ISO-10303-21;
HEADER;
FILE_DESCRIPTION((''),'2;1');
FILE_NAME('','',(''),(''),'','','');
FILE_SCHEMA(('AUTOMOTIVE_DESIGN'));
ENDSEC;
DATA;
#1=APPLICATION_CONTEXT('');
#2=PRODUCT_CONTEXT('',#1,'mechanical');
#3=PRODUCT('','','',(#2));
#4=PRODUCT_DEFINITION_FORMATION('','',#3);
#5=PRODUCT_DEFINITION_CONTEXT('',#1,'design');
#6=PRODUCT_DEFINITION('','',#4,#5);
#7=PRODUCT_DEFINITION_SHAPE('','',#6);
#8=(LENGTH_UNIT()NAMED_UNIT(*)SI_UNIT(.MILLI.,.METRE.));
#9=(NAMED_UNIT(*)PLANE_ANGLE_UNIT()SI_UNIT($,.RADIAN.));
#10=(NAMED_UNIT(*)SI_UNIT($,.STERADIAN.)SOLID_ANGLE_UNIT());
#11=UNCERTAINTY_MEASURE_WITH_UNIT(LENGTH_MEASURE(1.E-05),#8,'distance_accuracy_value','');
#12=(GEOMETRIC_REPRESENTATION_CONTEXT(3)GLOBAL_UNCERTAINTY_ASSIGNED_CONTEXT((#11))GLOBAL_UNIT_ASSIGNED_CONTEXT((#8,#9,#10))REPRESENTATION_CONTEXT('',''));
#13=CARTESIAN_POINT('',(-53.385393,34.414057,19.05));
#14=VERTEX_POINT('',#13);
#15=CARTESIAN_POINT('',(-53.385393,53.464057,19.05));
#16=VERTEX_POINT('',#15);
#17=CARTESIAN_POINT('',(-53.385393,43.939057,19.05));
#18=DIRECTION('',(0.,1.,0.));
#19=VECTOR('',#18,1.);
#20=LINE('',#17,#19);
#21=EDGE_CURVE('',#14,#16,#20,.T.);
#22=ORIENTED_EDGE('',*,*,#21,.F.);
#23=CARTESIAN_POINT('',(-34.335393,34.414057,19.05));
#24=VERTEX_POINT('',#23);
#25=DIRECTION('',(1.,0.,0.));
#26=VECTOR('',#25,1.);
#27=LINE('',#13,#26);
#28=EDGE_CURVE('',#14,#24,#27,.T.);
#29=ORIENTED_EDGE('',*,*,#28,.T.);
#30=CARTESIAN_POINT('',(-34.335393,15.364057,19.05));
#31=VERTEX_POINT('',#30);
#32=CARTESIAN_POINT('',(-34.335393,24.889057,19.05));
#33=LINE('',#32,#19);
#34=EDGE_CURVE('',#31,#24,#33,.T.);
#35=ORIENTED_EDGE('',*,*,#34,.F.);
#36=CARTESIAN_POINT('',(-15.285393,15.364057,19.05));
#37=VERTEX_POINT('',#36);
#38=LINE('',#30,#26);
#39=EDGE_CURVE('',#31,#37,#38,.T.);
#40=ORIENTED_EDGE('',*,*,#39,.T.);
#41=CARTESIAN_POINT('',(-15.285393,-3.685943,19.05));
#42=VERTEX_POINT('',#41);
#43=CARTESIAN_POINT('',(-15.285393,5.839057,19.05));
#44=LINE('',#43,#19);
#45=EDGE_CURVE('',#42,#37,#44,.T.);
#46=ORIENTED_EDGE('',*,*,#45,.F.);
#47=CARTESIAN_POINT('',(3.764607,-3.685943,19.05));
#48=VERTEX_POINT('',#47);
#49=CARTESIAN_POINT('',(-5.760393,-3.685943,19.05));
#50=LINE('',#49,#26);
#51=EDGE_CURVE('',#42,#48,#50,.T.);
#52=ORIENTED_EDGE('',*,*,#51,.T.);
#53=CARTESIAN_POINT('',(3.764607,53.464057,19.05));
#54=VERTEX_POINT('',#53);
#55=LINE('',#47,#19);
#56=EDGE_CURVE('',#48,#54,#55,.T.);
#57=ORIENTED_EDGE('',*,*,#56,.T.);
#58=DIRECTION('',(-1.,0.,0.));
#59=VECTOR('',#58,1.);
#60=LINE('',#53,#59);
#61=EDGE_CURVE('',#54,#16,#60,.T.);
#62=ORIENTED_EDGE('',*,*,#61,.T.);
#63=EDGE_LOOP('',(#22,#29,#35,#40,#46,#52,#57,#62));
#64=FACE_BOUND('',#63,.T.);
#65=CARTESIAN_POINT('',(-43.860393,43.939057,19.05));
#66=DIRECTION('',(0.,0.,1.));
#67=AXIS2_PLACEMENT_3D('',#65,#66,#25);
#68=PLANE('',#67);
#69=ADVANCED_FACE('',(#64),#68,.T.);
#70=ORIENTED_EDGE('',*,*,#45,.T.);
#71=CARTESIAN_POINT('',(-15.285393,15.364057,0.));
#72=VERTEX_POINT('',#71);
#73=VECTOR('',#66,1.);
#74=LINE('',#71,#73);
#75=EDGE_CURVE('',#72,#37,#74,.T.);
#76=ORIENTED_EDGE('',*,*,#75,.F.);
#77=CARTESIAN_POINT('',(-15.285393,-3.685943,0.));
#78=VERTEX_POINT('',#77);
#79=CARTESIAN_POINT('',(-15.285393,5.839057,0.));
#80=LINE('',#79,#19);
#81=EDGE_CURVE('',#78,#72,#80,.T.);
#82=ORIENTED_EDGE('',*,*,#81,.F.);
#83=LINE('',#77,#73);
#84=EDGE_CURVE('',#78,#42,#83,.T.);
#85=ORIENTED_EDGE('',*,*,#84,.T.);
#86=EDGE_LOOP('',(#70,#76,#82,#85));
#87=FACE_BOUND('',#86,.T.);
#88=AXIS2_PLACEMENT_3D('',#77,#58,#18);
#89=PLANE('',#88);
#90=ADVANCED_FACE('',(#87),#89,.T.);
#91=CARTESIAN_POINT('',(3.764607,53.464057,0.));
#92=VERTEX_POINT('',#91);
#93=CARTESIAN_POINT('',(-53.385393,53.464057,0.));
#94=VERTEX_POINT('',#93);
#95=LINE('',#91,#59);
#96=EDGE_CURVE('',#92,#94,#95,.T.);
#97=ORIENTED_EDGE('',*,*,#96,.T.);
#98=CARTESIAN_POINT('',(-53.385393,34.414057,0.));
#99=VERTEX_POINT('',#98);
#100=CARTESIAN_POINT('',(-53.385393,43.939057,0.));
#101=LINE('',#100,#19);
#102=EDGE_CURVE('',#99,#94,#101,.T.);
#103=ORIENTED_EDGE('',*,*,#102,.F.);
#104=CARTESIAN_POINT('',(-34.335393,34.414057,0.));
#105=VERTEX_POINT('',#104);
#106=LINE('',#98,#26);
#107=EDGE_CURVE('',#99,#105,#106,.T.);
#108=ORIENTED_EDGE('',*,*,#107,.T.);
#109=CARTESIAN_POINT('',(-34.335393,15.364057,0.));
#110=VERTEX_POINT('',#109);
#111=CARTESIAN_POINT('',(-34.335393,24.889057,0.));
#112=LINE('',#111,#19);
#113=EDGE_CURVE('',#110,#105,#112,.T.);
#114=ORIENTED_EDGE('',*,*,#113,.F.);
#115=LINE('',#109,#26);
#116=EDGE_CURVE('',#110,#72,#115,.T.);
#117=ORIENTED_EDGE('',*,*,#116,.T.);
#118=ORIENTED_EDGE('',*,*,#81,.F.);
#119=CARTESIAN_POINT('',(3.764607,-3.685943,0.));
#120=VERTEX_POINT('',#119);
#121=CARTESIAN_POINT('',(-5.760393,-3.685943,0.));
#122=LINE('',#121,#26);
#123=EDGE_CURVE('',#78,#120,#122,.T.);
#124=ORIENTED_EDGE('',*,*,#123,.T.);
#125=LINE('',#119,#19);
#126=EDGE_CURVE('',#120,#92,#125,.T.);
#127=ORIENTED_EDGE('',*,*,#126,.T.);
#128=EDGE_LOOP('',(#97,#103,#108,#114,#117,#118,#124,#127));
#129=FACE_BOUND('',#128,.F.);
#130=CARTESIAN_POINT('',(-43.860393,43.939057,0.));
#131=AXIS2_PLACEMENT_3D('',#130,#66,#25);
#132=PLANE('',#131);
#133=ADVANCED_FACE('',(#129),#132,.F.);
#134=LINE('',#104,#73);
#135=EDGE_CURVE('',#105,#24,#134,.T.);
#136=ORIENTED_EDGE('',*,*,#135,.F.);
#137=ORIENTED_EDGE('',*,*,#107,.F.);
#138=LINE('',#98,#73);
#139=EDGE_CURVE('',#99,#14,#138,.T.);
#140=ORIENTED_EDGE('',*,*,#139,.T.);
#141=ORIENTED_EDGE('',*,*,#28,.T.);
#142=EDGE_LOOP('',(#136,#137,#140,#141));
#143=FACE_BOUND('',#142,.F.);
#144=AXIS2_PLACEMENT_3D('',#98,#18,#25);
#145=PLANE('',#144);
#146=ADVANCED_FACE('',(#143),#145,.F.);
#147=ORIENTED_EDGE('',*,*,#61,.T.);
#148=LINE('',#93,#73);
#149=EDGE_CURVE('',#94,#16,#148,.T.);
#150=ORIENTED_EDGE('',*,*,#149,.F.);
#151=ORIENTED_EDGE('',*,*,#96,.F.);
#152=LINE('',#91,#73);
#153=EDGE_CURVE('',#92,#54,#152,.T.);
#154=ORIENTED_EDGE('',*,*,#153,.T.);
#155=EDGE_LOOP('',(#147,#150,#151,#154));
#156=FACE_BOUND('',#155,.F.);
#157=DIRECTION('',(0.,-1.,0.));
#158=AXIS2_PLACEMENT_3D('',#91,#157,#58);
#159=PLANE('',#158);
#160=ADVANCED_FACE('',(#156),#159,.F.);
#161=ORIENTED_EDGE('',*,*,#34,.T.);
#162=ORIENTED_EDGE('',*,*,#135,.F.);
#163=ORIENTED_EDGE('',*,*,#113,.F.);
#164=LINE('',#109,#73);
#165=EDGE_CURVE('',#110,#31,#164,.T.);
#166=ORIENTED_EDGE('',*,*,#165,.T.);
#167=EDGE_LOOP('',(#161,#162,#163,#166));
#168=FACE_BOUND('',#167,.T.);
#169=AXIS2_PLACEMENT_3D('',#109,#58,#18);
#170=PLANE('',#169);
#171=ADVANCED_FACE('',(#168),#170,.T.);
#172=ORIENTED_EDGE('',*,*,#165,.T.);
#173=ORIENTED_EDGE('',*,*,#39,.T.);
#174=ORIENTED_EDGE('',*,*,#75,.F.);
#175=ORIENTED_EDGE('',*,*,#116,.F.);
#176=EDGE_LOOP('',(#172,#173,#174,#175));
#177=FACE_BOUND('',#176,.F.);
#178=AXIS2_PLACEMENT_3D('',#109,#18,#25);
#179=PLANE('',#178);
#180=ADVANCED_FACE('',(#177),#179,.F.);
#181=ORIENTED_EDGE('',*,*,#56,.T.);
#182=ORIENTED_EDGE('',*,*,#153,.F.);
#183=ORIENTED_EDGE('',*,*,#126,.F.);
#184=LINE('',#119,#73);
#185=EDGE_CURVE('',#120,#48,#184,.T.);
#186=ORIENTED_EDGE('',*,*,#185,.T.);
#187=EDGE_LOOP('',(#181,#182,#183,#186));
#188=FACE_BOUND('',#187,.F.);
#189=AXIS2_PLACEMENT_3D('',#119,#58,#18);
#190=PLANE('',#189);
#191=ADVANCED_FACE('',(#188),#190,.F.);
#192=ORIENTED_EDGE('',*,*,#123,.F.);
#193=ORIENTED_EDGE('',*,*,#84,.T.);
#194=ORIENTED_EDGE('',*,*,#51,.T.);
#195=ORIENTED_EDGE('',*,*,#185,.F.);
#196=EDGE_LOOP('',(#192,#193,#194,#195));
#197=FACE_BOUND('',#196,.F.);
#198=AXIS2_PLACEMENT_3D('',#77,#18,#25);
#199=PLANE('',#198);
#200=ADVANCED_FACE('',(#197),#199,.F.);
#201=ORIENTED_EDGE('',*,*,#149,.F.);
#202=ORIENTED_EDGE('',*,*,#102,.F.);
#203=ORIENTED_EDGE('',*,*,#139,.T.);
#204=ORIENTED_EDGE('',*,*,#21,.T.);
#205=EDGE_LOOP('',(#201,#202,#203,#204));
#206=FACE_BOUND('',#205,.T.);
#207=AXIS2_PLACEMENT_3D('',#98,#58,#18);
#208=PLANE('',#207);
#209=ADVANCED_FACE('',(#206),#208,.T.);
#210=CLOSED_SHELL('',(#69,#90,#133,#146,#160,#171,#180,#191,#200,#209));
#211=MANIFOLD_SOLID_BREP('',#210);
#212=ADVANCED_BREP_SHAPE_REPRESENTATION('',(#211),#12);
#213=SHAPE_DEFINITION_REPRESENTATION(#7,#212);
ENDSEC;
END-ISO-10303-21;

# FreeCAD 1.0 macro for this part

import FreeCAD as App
import Part
import Sketcher
Q = App.Units.Quantity


def add_polygon(sketch, points):
    """Adds a closed chain of lines whose ends are joined by coincident constraints."""
    first, n = sketch.GeometryCount, len(points)
    for a, b in zip(points, points[1:] + points[:1]):
        sketch.addGeometry(Part.LineSegment(App.Vector(*a, 0), App.Vector(*b, 0)), False)
    for i in range(n):
        sketch.addConstraint(Sketcher.Constraint("Coincident", first + i, 2, first + (i + 1) % n, 1))

doc = App.newDocument("Part")
params = doc.addObject("Spreadsheet::Sheet", "Params")
for row, (alias, value) in enumerate([
    ("sketch1_width", "0.75 in"),
    ("pad1_length", "0.75 in"),
], start=1):
    params.set(f"A{row}", alias)
    params.set(f"B{row}", "=" + value)
    params.setAlias(f"B{row}", alias)

body = doc.addObject("PartDesign::Body", "Body")

sketch1 = body.newObject("Sketcher::SketchObject", "Sketch")
sketch1.AttachmentSupport = (doc.getObject("XY_Plane"), [""])
sketch1.MapMode = "FlatFace"
add_polygon(sketch1, [(-53, 53), (-53, 34), (-34, 34), (-34, 15), (-15, 15), (-15, -4), (4, -4), (4, 53)])
sketch1.addConstraint(Sketcher.Constraint("Vertical", 0))
sketch1.addConstraint(Sketcher.Constraint("Horizontal", 1))
sketch1.addConstraint(Sketcher.Constraint("Vertical", 2))
sketch1.addConstraint(Sketcher.Constraint("Horizontal", 3))
sketch1.addConstraint(Sketcher.Constraint("Vertical", 4))
sketch1.addConstraint(Sketcher.Constraint("Horizontal", 5))
sketch1.addConstraint(Sketcher.Constraint("Vertical", 6))
sketch1.addConstraint(Sketcher.Constraint("Horizontal", 7))
sketch1.addConstraint(Sketcher.Constraint("Equal", 1, 3))
sketch1.addConstraint(Sketcher.Constraint("Equal", 3, 5))
sketch1.addConstraint(Sketcher.Constraint("Equal", 5, 0))
sketch1.addConstraint(Sketcher.Constraint("Equal", 0, 2))
sketch1.addConstraint(Sketcher.Constraint("Equal", 2, 4))
sketch1.addConstraint(Sketcher.Constraint("DistanceX", 1, 1, 1, 2, Q("0.75 in")))
sketch1.addConstraint(Sketcher.Constraint("DistanceX", 0, 2, -1, 1, 53.385393))
sketch1.addConstraint(Sketcher.Constraint("DistanceY", -1, 1, 0, 2, 34.414057))
sketch1.setExpression("Constraints[21]", "Params.sketch1_width")
pad1 = body.newObject("PartDesign::Pad", "Pad")
pad1.Profile = sketch1
pad1.setExpression("Length", "Params.pad1_length")

doc.recompute()
